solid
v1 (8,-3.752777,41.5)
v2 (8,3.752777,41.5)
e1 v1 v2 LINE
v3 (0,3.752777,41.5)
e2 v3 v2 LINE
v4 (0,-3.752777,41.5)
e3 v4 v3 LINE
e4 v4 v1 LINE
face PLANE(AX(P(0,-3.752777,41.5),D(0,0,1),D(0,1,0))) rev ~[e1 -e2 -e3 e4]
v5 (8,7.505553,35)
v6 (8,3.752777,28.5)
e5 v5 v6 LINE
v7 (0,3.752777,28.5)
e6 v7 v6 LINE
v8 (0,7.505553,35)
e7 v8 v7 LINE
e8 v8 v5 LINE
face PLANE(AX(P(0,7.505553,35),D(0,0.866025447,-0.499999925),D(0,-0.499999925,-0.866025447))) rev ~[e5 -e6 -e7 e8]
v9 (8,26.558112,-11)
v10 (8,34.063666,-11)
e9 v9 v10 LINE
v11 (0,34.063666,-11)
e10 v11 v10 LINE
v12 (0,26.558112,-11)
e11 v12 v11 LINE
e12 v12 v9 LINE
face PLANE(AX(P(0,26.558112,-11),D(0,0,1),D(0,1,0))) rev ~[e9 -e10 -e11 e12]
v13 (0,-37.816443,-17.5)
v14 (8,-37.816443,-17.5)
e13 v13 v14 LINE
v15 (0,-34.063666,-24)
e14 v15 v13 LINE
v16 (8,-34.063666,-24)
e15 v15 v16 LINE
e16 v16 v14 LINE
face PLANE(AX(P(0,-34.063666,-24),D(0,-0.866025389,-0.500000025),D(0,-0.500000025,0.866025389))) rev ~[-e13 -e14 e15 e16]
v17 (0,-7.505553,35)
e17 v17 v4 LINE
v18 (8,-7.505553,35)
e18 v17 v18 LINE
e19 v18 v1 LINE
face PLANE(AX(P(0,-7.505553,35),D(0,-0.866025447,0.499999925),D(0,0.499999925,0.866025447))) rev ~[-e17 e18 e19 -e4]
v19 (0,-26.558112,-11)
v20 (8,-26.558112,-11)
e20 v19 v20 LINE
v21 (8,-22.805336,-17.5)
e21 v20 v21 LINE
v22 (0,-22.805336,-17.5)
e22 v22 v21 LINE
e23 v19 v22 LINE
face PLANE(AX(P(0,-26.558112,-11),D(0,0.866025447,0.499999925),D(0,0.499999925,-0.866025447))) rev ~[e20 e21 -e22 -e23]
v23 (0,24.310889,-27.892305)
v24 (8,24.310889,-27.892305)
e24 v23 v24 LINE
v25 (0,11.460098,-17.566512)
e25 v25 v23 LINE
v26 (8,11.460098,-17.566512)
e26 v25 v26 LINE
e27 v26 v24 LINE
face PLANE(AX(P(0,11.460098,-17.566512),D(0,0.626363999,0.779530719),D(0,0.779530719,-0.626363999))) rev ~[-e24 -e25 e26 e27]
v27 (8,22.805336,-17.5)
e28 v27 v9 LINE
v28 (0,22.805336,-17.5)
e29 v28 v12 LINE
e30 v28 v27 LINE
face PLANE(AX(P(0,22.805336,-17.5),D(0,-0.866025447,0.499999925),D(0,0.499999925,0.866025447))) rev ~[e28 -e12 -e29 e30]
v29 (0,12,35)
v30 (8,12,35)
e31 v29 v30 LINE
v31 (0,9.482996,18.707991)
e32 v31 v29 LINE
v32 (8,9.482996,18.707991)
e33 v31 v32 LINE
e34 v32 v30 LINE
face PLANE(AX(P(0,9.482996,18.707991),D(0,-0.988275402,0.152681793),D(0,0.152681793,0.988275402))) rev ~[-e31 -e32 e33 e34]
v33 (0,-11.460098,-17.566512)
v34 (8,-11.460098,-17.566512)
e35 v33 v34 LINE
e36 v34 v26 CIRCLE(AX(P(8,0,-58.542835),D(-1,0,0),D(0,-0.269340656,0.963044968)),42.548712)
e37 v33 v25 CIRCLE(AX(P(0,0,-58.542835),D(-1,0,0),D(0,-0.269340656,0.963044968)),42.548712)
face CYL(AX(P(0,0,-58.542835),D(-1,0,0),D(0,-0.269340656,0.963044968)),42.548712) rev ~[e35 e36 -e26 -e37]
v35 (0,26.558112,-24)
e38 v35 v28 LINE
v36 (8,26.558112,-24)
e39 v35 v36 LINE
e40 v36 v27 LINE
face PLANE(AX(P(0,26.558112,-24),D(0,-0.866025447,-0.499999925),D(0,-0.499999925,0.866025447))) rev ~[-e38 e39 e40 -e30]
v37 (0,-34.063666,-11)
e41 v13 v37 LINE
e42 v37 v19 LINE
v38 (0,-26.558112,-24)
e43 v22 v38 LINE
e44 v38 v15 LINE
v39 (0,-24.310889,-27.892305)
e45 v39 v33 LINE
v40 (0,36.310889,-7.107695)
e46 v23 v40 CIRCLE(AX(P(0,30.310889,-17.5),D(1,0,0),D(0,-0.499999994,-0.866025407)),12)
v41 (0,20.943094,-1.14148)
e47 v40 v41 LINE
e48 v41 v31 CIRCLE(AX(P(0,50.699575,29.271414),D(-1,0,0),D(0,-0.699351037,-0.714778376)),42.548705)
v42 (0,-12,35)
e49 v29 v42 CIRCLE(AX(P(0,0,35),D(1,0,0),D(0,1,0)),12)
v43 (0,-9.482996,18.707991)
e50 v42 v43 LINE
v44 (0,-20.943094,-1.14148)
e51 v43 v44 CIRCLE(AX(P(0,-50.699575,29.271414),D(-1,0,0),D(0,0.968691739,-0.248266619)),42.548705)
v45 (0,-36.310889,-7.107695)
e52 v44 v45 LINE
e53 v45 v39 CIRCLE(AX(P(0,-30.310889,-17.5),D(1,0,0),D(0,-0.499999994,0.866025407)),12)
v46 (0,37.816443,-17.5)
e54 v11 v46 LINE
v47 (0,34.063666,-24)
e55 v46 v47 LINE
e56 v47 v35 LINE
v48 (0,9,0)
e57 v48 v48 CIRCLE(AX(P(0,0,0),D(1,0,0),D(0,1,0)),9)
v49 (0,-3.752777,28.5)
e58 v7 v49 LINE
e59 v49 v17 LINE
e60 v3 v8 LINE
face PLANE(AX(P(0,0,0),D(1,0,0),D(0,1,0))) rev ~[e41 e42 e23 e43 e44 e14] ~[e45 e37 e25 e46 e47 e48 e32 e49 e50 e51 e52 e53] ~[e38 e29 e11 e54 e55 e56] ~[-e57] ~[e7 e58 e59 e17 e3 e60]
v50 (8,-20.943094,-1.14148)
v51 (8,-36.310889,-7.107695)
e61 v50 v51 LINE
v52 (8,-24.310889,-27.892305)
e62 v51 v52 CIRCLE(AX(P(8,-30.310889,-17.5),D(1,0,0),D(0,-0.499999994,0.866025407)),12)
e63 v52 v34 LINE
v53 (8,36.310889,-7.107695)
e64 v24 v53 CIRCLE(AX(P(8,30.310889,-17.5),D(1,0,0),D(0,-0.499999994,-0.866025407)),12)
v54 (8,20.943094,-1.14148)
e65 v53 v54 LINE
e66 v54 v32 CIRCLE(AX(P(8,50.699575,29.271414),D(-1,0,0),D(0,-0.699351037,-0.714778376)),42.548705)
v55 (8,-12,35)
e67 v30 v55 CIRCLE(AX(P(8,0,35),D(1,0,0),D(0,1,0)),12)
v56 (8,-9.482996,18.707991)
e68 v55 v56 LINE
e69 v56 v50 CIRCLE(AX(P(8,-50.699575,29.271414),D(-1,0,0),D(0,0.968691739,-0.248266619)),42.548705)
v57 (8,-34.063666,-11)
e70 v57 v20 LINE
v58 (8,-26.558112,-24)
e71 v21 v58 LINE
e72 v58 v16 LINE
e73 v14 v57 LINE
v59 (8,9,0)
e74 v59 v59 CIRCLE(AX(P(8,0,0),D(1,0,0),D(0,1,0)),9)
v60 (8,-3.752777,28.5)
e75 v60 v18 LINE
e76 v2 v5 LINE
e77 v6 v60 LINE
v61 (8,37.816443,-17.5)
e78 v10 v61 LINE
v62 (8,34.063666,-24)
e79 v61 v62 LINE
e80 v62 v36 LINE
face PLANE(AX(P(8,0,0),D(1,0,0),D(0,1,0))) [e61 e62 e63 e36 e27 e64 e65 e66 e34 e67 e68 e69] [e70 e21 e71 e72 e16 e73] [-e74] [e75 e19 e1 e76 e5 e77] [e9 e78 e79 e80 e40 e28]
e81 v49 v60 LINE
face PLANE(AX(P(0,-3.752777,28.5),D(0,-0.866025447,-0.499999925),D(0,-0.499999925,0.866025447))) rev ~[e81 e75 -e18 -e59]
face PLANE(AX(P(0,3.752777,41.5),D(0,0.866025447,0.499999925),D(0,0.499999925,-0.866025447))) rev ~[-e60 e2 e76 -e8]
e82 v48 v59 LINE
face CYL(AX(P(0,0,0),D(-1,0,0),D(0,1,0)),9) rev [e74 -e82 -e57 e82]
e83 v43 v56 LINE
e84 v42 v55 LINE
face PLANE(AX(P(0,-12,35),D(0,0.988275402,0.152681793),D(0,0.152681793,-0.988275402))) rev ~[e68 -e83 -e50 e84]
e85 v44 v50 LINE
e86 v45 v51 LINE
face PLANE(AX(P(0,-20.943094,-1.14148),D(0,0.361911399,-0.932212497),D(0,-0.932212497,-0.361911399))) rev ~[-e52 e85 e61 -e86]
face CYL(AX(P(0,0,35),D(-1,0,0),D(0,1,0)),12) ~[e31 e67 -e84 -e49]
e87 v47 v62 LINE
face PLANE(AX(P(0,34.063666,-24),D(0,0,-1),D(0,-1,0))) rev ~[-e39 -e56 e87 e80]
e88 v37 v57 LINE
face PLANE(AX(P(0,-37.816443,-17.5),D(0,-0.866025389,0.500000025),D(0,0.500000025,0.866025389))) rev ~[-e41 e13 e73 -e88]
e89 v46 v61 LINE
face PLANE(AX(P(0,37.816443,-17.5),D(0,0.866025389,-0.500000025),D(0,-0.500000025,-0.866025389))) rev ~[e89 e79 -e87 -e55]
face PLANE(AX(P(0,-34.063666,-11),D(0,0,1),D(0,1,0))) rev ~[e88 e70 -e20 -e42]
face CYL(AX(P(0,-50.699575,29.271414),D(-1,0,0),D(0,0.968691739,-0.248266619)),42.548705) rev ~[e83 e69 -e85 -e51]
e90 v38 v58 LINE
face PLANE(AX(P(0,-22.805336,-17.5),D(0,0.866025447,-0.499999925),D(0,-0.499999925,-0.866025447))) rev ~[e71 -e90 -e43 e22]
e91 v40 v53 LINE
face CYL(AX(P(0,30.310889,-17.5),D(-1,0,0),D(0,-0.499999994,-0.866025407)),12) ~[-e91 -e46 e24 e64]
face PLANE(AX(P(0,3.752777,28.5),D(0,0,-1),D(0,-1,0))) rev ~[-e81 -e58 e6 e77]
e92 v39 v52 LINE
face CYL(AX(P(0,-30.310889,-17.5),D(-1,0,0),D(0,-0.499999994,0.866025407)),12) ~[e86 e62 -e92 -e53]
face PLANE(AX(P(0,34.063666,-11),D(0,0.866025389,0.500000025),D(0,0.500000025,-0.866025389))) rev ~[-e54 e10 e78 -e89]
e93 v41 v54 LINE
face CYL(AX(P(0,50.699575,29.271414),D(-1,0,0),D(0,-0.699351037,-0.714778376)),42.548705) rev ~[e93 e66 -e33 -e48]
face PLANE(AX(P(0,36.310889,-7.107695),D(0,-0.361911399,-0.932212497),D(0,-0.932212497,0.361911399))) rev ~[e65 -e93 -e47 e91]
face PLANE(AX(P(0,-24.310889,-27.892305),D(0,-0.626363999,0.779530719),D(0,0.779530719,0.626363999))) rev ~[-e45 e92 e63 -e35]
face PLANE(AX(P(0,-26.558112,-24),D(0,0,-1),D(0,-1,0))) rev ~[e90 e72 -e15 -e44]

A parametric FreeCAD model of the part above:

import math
import FreeCAD as App
import Part
import Sketcher
Q = App.Units.Quantity

doc = App.newDocument("Part")
params = doc.addObject("Spreadsheet::Sheet", "Params")
for row, (alias, value) in enumerate([
    ("sketch1_diameter", "18 mm"),
    ("sketch1_radius", "12 mm"),
    ("sketch1_width", "6 mm"),
    ("pad1_length", "8 mm"),
], start=1):
    params.set(f"A{row}", alias)
    params.set(f"B{row}", "=" + value)
    params.setAlias(f"B{row}", alias)

body = doc.addObject("PartDesign::Body", "Body")

sketch1 = body.newObject("Sketcher::SketchObject", "Sketch")
sketch1.AttachmentSupport = (doc.getObject("YZ_Plane"), [""])
sketch1.MapMode = "FlatFace"
sketch1.addGeometry(Part.LineSegment(App.Vector(9.482996, 18.707991, 0), App.Vector(12, 35, 0)), False)
sketch1.addGeometry(Part.ArcOfCircle(Part.Circle(App.Vector(0, 35, 0), App.Vector(0, 0, 1), 12), math.radians(0), math.radians(180)), False)
sketch1.addGeometry(Part.LineSegment(App.Vector(-12, 35, 0), App.Vector(-9.482996, 18.707991, 0)), False)
sketch1.addGeometry(Part.ArcOfCircle(Part.Circle(App.Vector(-50.699575, 29.271414, 0), App.Vector(0, 0, 1), 42.548705), math.radians(-45.625039), math.radians(-14.374963)), False)
sketch1.addGeometry(Part.LineSegment(App.Vector(-20.943094, -1.14148, 0), App.Vector(-36.310889, -7.107695, 0)), False)
sketch1.addGeometry(Part.ArcOfCircle(Part.Circle(App.Vector(-30.310889, -17.5, 0), App.Vector(0, 0, 1), 12), math.radians(120), math.radians(300)), False)
sketch1.addGeometry(Part.LineSegment(App.Vector(-24.310889, -27.892305, 0), App.Vector(-11.460098, -17.566512, 0)), False)
sketch1.addGeometry(Part.ArcOfCircle(Part.Circle(App.Vector(0, -58.542835, 0), App.Vector(0, 0, 1), 42.548712), math.radians(74.374964), math.radians(105.625036)), False)
sketch1.addGeometry(Part.LineSegment(App.Vector(11.460098, -17.566512, 0), App.Vector(24.310889, -27.892305, 0)), False)
sketch1.addGeometry(Part.ArcOfCircle(Part.Circle(App.Vector(30.310889, -17.5, 0), App.Vector(0, 0, 1), 12), math.radians(-120), math.radians(60)), False)
sketch1.addGeometry(Part.LineSegment(App.Vector(36.310889, -7.107695, 0), App.Vector(20.943094, -1.14148, 0)), False)
sketch1.addGeometry(Part.ArcOfCircle(Part.Circle(App.Vector(50.699575, 29.271414, 0), App.Vector(0, 0, 1), 42.548705), math.radians(-165.625037), math.radians(-134.374961)), False)
sketch1.addGeometry(Part.LineSegment(App.Vector(-34.063666, -11, 0), App.Vector(-26.558112, -11, 0)), False)
sketch1.addGeometry(Part.LineSegment(App.Vector(-26.558112, -11, 0), App.Vector(-22.805336, -17.5, 0)), False)
sketch1.addGeometry(Part.LineSegment(App.Vector(-22.805336, -17.5, 0), App.Vector(-26.558112, -24, 0)), False)
sketch1.addGeometry(Part.LineSegment(App.Vector(-26.558112, -24, 0), App.Vector(-34.063666, -24, 0)), False)
sketch1.addGeometry(Part.LineSegment(App.Vector(-34.063666, -24, 0), App.Vector(-37.816443, -17.5, 0)), False)
sketch1.addGeometry(Part.LineSegment(App.Vector(-37.816443, -17.5, 0), App.Vector(-34.063666, -11, 0)), False)
sketch1.addGeometry(Part.LineSegment(App.Vector(26.558112, -24, 0), App.Vector(22.805336, -17.5, 0)), False)
sketch1.addGeometry(Part.LineSegment(App.Vector(22.805336, -17.5, 0), App.Vector(26.558112, -11, 0)), False)
sketch1.addGeometry(Part.LineSegment(App.Vector(26.558112, -11, 0), App.Vector(34.063666, -11, 0)), False)
sketch1.addGeometry(Part.LineSegment(App.Vector(34.063666, -11, 0), App.Vector(37.816443, -17.5, 0)), False)
sketch1.addGeometry(Part.LineSegment(App.Vector(37.816443, -17.5, 0), App.Vector(34.063666, -24, 0)), False)
sketch1.addGeometry(Part.LineSegment(App.Vector(34.063666, -24, 0), App.Vector(26.558112, -24, 0)), False)
sketch1.addGeometry(Part.Circle(App.Vector(0, 0, 0), App.Vector(0, 0, 1), 9), False)
sketch1.addGeometry(Part.LineSegment(App.Vector(3.752777, 41.5, 0), App.Vector(7.505553, 35, 0)), False)
sketch1.addGeometry(Part.LineSegment(App.Vector(7.505553, 35, 0), App.Vector(3.752777, 28.5, 0)), False)
sketch1.addGeometry(Part.LineSegment(App.Vector(3.752777, 28.5, 0), App.Vector(-3.752777, 28.5, 0)), False)
sketch1.addGeometry(Part.LineSegment(App.Vector(-3.752777, 28.5, 0), App.Vector(-7.505553, 35, 0)), False)
sketch1.addGeometry(Part.LineSegment(App.Vector(-7.505553, 35, 0), App.Vector(-3.752777, 41.5, 0)), False)
sketch1.addGeometry(Part.LineSegment(App.Vector(-3.752777, 41.5, 0), App.Vector(3.752777, 41.5, 0)), False)
sketch1.addConstraint(Sketcher.Constraint("Coincident", 0, 2, 1, 1))
sketch1.addConstraint(Sketcher.Constraint("Coincident", 1, 2, 2, 1))
sketch1.addConstraint(Sketcher.Constraint("Coincident", 2, 2, 3, 2))
sketch1.addConstraint(Sketcher.Constraint("Coincident", 3, 1, 4, 1))
sketch1.addConstraint(Sketcher.Constraint("Coincident", 4, 2, 5, 1))
sketch1.addConstraint(Sketcher.Constraint("Coincident", 5, 2, 6, 1))
sketch1.addConstraint(Sketcher.Constraint("Coincident", 6, 2, 7, 2))
sketch1.addConstraint(Sketcher.Constraint("Coincident", 7, 1, 8, 1))
sketch1.addConstraint(Sketcher.Constraint("Coincident", 8, 2, 9, 1))
sketch1.addConstraint(Sketcher.Constraint("Coincident", 9, 2, 10, 1))
sketch1.addConstraint(Sketcher.Constraint("Coincident", 10, 2, 11, 2))
sketch1.addConstraint(Sketcher.Constraint("Coincident", 11, 1, 0, 1))
sketch1.addConstraint(Sketcher.Constraint("Coincident", 12, 2, 13, 1))
sketch1.addConstraint(Sketcher.Constraint("Coincident", 13, 2, 14, 1))
sketch1.addConstraint(Sketcher.Constraint("Coincident", 14, 2, 15, 1))
sketch1.addConstraint(Sketcher.Constraint("Coincident", 15, 2, 16, 1))
sketch1.addConstraint(Sketcher.Constraint("Coincident", 16, 2, 17, 1))
sketch1.addConstraint(Sketcher.Constraint("Coincident", 17, 2, 12, 1))
sketch1.addConstraint(Sketcher.Constraint("Coincident", 18, 2, 19, 1))
sketch1.addConstraint(Sketcher.Constraint("Coincident", 19, 2, 20, 1))
sketch1.addConstraint(Sketcher.Constraint("Coincident", 20, 2, 21, 1))
sketch1.addConstraint(Sketcher.Constraint("Coincident", 21, 2, 22, 1))
sketch1.addConstraint(Sketcher.Constraint("Coincident", 22, 2, 23, 1))
sketch1.addConstraint(Sketcher.Constraint("Coincident", 23, 2, 18, 1))
sketch1.addConstraint(Sketcher.Constraint("Coincident", 25, 2, 26, 1))
sketch1.addConstraint(Sketcher.Constraint("Coincident", 26, 2, 27, 1))
sketch1.addConstraint(Sketcher.Constraint("Coincident", 27, 2, 28, 1))
sketch1.addConstraint(Sketcher.Constraint("Coincident", 28, 2, 29, 1))
sketch1.addConstraint(Sketcher.Constraint("Coincident", 29, 2, 30, 1))
sketch1.addConstraint(Sketcher.Constraint("Coincident", 30, 2, 25, 1))
sketch1.addConstraint(Sketcher.Constraint("Horizontal", 12))
sketch1.addConstraint(Sketcher.Constraint("Horizontal", 15))
sketch1.addConstraint(Sketcher.Constraint("Horizontal", 20))
sketch1.addConstraint(Sketcher.Constraint("Horizontal", 23))
sketch1.addConstraint(Sketcher.Constraint("Horizontal", 27))
sketch1.addConstraint(Sketcher.Constraint("Horizontal", 30))
sketch1.addConstraint(Sketcher.Constraint("Coincident", 24, 3, -1, 1))
sketch1.addConstraint(Sketcher.Constraint("Equal", 1, 5))
sketch1.addConstraint(Sketcher.Constraint("Equal", 5, 9))
sketch1.addConstraint(Sketcher.Constraint("Equal", 3, 11))
sketch1.addConstraint(Sketcher.Constraint("Symmetric", 5, 3, 9, 3, -2))
sketch1.addConstraint(Sketcher.Constraint("Symmetric", 3, 3, 11, 3, -2))
sketch1.addConstraint(Sketcher.Constraint("Symmetric", 0, 2, 1, 2, -2))
sketch1.addConstraint(Sketcher.Constraint("Symmetric", 6, 2, 7, 1, -2))
sketch1.addConstraint(Sketcher.Constraint("Symmetric", 13, 2, 18, 2, -2))
sketch1.addConstraint(Sketcher.Constraint("Symmetric", 12, 2, 19, 2, -2))
sketch1.addConstraint(Sketcher.Constraint("Symmetric", 16, 2, 21, 2, -2))
sketch1.addConstraint(Sketcher.Constraint("Symmetric", 15, 2, 22, 2, -2))
sketch1.addConstraint(Sketcher.Constraint("Symmetric", 25, 2, 28, 2, -2))
sketch1.addConstraint(Sketcher.Constraint("Parallel", 13, 16))
sketch1.addConstraint(Sketcher.Constraint("Parallel", 14, 17))
sketch1.addConstraint(Sketcher.Constraint("Parallel", 16, 18))
sketch1.addConstraint(Sketcher.Constraint("Parallel", 17, 19))
sketch1.addConstraint(Sketcher.Constraint("Parallel", 18, 21))
sketch1.addConstraint(Sketcher.Constraint("Parallel", 21, 25))
sketch1.addConstraint(Sketcher.Constraint("Parallel", 22, 26))
sketch1.addConstraint(Sketcher.Constraint("Parallel", 25, 28))
sketch1.addConstraint(Sketcher.Constraint("Parallel", 26, 29))
sketch1.addConstraint(Sketcher.Constraint("Horizontal", 1, 3, 0, 2))
sketch1.addConstraint(Sketcher.Constraint("Horizontal", 5, 2, 8, 2))
sketch1.addConstraint(Sketcher.Constraint("Horizontal", 4, 2, 9, 2))
sketch1.addConstraint(Sketcher.Constraint("Horizontal", 3, 1, 10, 2))
sketch1.addConstraint(Sketcher.Constraint("Horizontal", 2, 2, 11, 1))
sketch1.addConstraint(Sketcher.Constraint("Horizontal", 9, 3, 13, 2))
sketch1.addConstraint(Sketcher.Constraint("Horizontal", 13, 2, 16, 2))
sketch1.addConstraint(Sketcher.Constraint("Horizontal", 1, 2, 25, 2))
sketch1.addConstraint(Sketcher.Constraint("Vertical", 12, 2, 14, 2))
sketch1.addConstraint(Sketcher.Constraint("Vertical", 27, 2, 29, 2))
sketch1.addConstraint(Sketcher.Constraint("Equal", 23, 27))
sketch1.addConstraint(Sketcher.Constraint("Equal", 2, 4))
sketch1.addConstraint(Sketcher.Constraint("Equal", 4, 6))
sketch1.addConstraint(Sketcher.Constraint("Equal", 22, 25))
sketch1.addConstraint(Sketcher.Constraint("Diameter", 24, 18.0))
sketch1.addConstraint(Sketcher.Constraint("Radius", 1, 12.0))
sketch1.addConstraint(Sketcher.Constraint("Angle", 13, Q("-60.000005 deg")))
sketch1.addConstraint(Sketcher.Constraint("DistanceY", -1, 1, 1, 3, 35.0))
sketch1.addConstraint(Sketcher.Constraint("DistanceY", 12, 2, -1, 1, 11.0))
sketch1.addConstraint(Sketcher.Constraint("DistanceY", 14, 2, -1, 1, 24.0))
sketch1.addConstraint(Sketcher.Constraint("DistanceX", 4, 2, 5, 3, 6.0))
sketch1.addConstraint(Sketcher.Constraint("DistanceX", 5, 3, 5, 2, 6.0))
sketch1.addConstraint(Sketcher.Constraint("Radius", 7, 42.548712))
sketch1.addConstraint(Sketcher.Constraint("Radius", 3, 42.548705))
sketch1.addConstraint(Sketcher.Constraint("DistanceX", -1, 1, 7, 1, 11.460098))
sketch1.addConstraint(Sketcher.Constraint("Distance", 4, 16.485292))
sketch1.addConstraint(Sketcher.Constraint("DistanceX", 12, 1, 12, 2, 7.505554))
sketch1.addConstraint(Sketcher.Constraint("DistanceX", 5, 3, -1, 1, 30.310889))
sketch1.addConstraint(Sketcher.Constraint("DistanceY", -1, 1, 2, 2, 18.707991))
sketch1.addConstraint(Sketcher.Constraint("DistanceY", 3, 1, -1, 1, 1.14148))
sketch1.addConstraint(Sketcher.Constraint("DistanceX", 12, 2, 3, 1, 5.615018))
sketch1.setExpression("Constraints[72]", "Params.sketch1_diameter")
sketch1.setExpression("Constraints[73]", "Params.sketch1_radius")
sketch1.setExpression("Constraints[79]", "Params.sketch1_width")
pad1 = body.newObject("PartDesign::Pad", "Pad")
pad1.Profile = sketch1
pad1.setExpression("Length", "Params.pad1_length")

doc.recompute()
